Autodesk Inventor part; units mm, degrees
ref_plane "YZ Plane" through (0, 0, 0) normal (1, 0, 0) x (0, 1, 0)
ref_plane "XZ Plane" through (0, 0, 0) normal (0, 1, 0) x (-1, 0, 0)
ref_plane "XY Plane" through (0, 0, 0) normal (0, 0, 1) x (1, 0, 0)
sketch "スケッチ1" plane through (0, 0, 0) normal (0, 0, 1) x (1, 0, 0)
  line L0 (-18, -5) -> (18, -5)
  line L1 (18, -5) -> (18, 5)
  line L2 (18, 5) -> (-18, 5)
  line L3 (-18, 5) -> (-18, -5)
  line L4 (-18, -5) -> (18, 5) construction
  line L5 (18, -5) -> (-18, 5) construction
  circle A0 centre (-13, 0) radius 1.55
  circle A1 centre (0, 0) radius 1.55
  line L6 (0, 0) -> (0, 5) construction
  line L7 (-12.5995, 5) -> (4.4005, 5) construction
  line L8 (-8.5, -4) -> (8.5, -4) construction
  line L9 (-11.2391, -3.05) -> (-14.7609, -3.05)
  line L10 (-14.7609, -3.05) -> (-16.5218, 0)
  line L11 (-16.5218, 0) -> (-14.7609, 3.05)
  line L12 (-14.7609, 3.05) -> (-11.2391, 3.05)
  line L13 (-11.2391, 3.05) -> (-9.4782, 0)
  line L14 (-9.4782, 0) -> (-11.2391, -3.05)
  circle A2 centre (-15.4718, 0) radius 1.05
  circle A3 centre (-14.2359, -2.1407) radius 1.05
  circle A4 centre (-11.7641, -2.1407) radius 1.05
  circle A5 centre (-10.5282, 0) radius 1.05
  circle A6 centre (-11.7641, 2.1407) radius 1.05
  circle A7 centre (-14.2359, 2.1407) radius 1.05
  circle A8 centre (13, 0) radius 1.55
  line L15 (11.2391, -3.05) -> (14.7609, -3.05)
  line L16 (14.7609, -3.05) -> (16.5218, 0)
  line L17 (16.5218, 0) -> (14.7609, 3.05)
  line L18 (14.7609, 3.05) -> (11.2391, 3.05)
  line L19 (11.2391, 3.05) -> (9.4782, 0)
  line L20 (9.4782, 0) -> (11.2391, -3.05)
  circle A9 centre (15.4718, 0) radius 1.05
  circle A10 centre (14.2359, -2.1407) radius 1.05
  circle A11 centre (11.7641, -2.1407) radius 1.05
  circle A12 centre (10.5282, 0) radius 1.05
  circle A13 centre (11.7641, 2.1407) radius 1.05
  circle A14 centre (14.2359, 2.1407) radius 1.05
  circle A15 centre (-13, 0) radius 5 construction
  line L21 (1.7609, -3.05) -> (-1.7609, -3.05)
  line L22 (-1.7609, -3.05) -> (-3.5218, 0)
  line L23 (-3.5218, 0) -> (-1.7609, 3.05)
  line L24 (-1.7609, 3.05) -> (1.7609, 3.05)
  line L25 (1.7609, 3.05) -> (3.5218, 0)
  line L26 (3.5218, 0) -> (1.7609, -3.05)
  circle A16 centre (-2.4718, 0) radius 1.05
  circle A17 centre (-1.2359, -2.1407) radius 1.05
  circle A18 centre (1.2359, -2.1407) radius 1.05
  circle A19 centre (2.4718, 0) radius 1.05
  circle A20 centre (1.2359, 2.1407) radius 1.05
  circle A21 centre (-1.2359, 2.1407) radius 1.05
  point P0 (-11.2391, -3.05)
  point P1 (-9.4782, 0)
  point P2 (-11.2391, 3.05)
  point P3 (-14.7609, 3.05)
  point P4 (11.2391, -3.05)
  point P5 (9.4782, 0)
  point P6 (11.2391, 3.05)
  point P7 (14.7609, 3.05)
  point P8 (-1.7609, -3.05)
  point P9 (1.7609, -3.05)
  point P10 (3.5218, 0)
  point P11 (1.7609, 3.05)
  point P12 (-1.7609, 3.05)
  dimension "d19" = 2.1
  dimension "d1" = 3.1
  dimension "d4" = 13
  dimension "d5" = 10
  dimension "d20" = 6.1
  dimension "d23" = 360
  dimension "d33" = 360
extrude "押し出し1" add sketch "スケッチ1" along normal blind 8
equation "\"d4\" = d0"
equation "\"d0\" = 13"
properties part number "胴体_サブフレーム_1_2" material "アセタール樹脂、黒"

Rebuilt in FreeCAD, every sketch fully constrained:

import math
import FreeCAD as App
import Part
import Sketcher
Q = App.Units.Quantity

doc = App.newDocument("Part")
body = doc.addObject("PartDesign::Body", "Body")

sketch1 = body.newObject("Sketcher::SketchObject", "Sketch")
sketch1.AttachmentSupport = (doc.getObject("XY_Plane"), [""])
sketch1.MapMode = "FlatFace"
sketch1.addGeometry([
    Part.LineSegment(App.Vector(-18, 5, 0), App.Vector(-18, -5, 0)),
    Part.LineSegment(App.Vector(-18, -5, 0), App.Vector(18, -5, 0)),
    Part.LineSegment(App.Vector(18, -5, 0), App.Vector(18, 5, 0)),
    Part.LineSegment(App.Vector(18, 5, 0), App.Vector(-18, 5, 0)),
    Part.LineSegment(App.Vector(-10.7, 2.1, 0), App.Vector(-10, 0.9, 0)),
    Part.ArcOfCircle(Part.Circle(App.Vector(-10.5, 0, 0), App.Vector(0, 0, 1), 1.1), math.radians(-60), math.radians(60)),
    Part.LineSegment(App.Vector(-10, -0.9, 0), App.Vector(-10.7, -2.1, 0)),
    Part.ArcOfCircle(Part.Circle(App.Vector(-11.8, -2.1, 0), App.Vector(0, 0, 1), 1.1), math.radians(-120), math.radians(0)),
    Part.LineSegment(App.Vector(-12.3, -3, 0), App.Vector(-13.7, -3, 0)),
    Part.ArcOfCircle(Part.Circle(App.Vector(-14.2, -2.1, 0), App.Vector(0, 0, 1), 1.1), math.radians(180), math.radians(300)),
    Part.LineSegment(App.Vector(-15.3, -2.1, 0), App.Vector(-16, -0.9, 0)),
    Part.ArcOfCircle(Part.Circle(App.Vector(-15.5, 0, 0), App.Vector(0, 0, 1), 1.1), math.radians(120), math.radians(240)),
    Part.LineSegment(App.Vector(-16, 0.9, 0), App.Vector(-15.3, 2.1, 0)),
    Part.ArcOfCircle(Part.Circle(App.Vector(-14.2, 2.1, 0), App.Vector(0, 0, 1), 1.1), math.radians(60), math.radians(180)),
    Part.LineSegment(App.Vector(-13.7, 3, 0), App.Vector(-12.3, 3, 0)),
    Part.ArcOfCircle(Part.Circle(App.Vector(-11.8, 2.1, 0), App.Vector(0, 0, 1), 1.1), math.radians(0), math.radians(120)),
    Part.LineSegment(App.Vector(2.3, 2.1, 0), App.Vector(3, 0.9, 0)),
    Part.ArcOfCircle(Part.Circle(App.Vector(2.5, 0, 0), App.Vector(0, 0, 1), 1.1), math.radians(-60), math.radians(60)),
    Part.LineSegment(App.Vector(3, -0.9, 0), App.Vector(2.3, -2.1, 0)),
    Part.ArcOfCircle(Part.Circle(App.Vector(1.2, -2.1, 0), App.Vector(0, 0, 1), 1.1), math.radians(-120), math.radians(0)),
    Part.LineSegment(App.Vector(0.7, -3, 0), App.Vector(-0.7, -3, 0)),
    Part.ArcOfCircle(Part.Circle(App.Vector(-1.2, -2.1, 0), App.Vector(0, 0, 1), 1.1), math.radians(180), math.radians(300)),
    Part.LineSegment(App.Vector(-2.3, -2.1, 0), App.Vector(-3, -0.9, 0)),
    Part.ArcOfCircle(Part.Circle(App.Vector(-2.5, 0, 0), App.Vector(0, 0, 1), 1.1), math.radians(120), math.radians(240)),
    Part.LineSegment(App.Vector(-3, 0.9, 0), App.Vector(-2.3, 2.1, 0)),
    Part.ArcOfCircle(Part.Circle(App.Vector(-1.2, 2.1, 0), App.Vector(0, 0, 1), 1.1), math.radians(60), math.radians(180)),
    Part.LineSegment(App.Vector(-0.7, 3, 0), App.Vector(0.7, 3, 0)),
    Part.ArcOfCircle(Part.Circle(App.Vector(1.2, 2.1, 0), App.Vector(0, 0, 1), 1.1), math.radians(0), math.radians(120)),
    Part.LineSegment(App.Vector(15.3, 2.1, 0), App.Vector(16, 0.9, 0)),
    Part.ArcOfCircle(Part.Circle(App.Vector(15.5, 0, 0), App.Vector(0, 0, 1), 1.1), math.radians(-60), math.radians(60)),
    Part.LineSegment(App.Vector(16, -0.9, 0), App.Vector(15.3, -2.1, 0)),
    Part.ArcOfCircle(Part.Circle(App.Vector(14.2, -2.1, 0), App.Vector(0, 0, 1), 1.1), math.radians(-120), math.radians(0)),
    Part.LineSegment(App.Vector(13.7, -3, 0), App.Vector(12.3, -3, 0)),
    Part.ArcOfCircle(Part.Circle(App.Vector(11.8, -2.1, 0), App.Vector(0, 0, 1), 1.1), math.radians(180), math.radians(300)),
    Part.LineSegment(App.Vector(10.7, -2.1, 0), App.Vector(10, -0.9, 0)),
    Part.ArcOfCircle(Part.Circle(App.Vector(10.5, 0, 0), App.Vector(0, 0, 1), 1.1), math.radians(120), math.radians(240)),
    Part.LineSegment(App.Vector(10, 0.9, 0), App.Vector(10.7, 2.1, 0)),
    Part.ArcOfCircle(Part.Circle(App.Vector(11.8, 2.1, 0), App.Vector(0, 0, 1), 1.1), math.radians(60), math.radians(180)),
    Part.LineSegment(App.Vector(12.3, 3, 0), App.Vector(13.7, 3, 0)),
    Part.ArcOfCircle(Part.Circle(App.Vector(14.2, 2.1, 0), App.Vector(0, 0, 1), 1.1), math.radians(0), math.radians(120)),
], False)
sketch1.addConstraint([
    Sketcher.Constraint("Coincident", 0, 2, 1, 1),
    Sketcher.Constraint("Coincident", 1, 2, 2, 1),
    Sketcher.Constraint("Coincident", 2, 2, 3, 1),
    Sketcher.Constraint("Coincident", 3, 2, 0, 1),
    Sketcher.Constraint("Coincident", 4, 2, 5, 2),
    Sketcher.Constraint("Coincident", 5, 1, 6, 1),
    Sketcher.Constraint("Coincident", 6, 2, 7, 2),
    Sketcher.Constraint("Coincident", 7, 1, 8, 1),
    Sketcher.Constraint("Coincident", 8, 2, 9, 2),
    Sketcher.Constraint("Coincident", 9, 1, 10, 1),
    Sketcher.Constraint("Coincident", 10, 2, 11, 2),
    Sketcher.Constraint("Coincident", 11, 1, 12, 1),
    Sketcher.Constraint("Coincident", 12, 2, 13, 2),
    Sketcher.Constraint("Coincident", 13, 1, 14, 1),
    Sketcher.Constraint("Coincident", 14, 2, 15, 2),
    Sketcher.Constraint("Coincident", 15, 1, 4, 1),
    Sketcher.Constraint("Coincident", 16, 2, 17, 2),
    Sketcher.Constraint("Coincident", 17, 1, 18, 1),
    Sketcher.Constraint("Coincident", 18, 2, 19, 2),
    Sketcher.Constraint("Coincident", 19, 1, 20, 1),
    Sketcher.Constraint("Coincident", 20, 2, 21, 2),
    Sketcher.Constraint("Coincident", 21, 1, 22, 1),
    Sketcher.Constraint("Coincident", 22, 2, 23, 2),
    Sketcher.Constraint("Coincident", 23, 1, 24, 1),
    Sketcher.Constraint("Coincident", 24, 2, 25, 2),
    Sketcher.Constraint("Coincident", 25, 1, 26, 1),
    Sketcher.Constraint("Coincident", 26, 2, 27, 2),
    Sketcher.Constraint("Coincident", 27, 1, 16, 1),
    Sketcher.Constraint("Coincident", 28, 2, 29, 2),
    Sketcher.Constraint("Coincident", 29, 1, 30, 1),
    Sketcher.Constraint("Coincident", 30, 2, 31, 2),
    Sketcher.Constraint("Coincident", 31, 1, 32, 1),
    Sketcher.Constraint("Coincident", 32, 2, 33, 2),
    Sketcher.Constraint("Coincident", 33, 1, 34, 1),
    Sketcher.Constraint("Coincident", 34, 2, 35, 2),
    Sketcher.Constraint("Coincident", 35, 1, 36, 1),
    Sketcher.Constraint("Coincident", 36, 2, 37, 2),
    Sketcher.Constraint("Coincident", 37, 1, 38, 1),
    Sketcher.Constraint("Coincident", 38, 2, 39, 2),
    Sketcher.Constraint("Coincident", 39, 1, 28, 1),
    Sketcher.Constraint("Vertical", 0),
    Sketcher.Constraint("Horizontal", 1),
    Sketcher.Constraint("Vertical", 2),
    Sketcher.Constraint("Horizontal", 3),
    Sketcher.Constraint("Horizontal", 8),
    Sketcher.Constraint("Horizontal", 14),
    Sketcher.Constraint("Horizontal", 20),
    Sketcher.Constraint("Horizontal", 26),
    Sketcher.Constraint("Horizontal", 32),
    Sketcher.Constraint("Horizontal", 38),
    Sketcher.Constraint("Equal", 5, 7),
    Sketcher.Constraint("Equal", 7, 9),
    Sketcher.Constraint("Equal", 9, 11),
    Sketcher.Constraint("Equal", 11, 13),
    Sketcher.Constraint("Equal", 13, 15),
    Sketcher.Constraint("Equal", 15, 17),
    Sketcher.Constraint("Equal", 17, 19),
    Sketcher.Constraint("Equal", 19, 21),
    Sketcher.Constraint("Equal", 21, 23),
    Sketcher.Constraint("Equal", 23, 25),
    Sketcher.Constraint("Equal", 25, 27),
    Sketcher.Constraint("Equal", 27, 29),
    Sketcher.Constraint("Equal", 29, 31),
    Sketcher.Constraint("Equal", 31, 33),
    Sketcher.Constraint("Equal", 33, 35),
    Sketcher.Constraint("Equal", 35, 37),
    Sketcher.Constraint("Equal", 37, 39),
    Sketcher.Constraint("Symmetric", 17, 3, 23, 3, -1, 1),
    Sketcher.Constraint("Symmetric", 19, 3, 25, 3, -1, 1),
    Sketcher.Constraint("Symmetric", 21, 3, 27, 3, -1, 1),
    Sketcher.Constraint("Symmetric", 11, 3, 29, 3, -1, 1),
    Sketcher.Constraint("Symmetric", 13, 3, 31, 3, -1, 1),
    Sketcher.Constraint("Symmetric", 15, 3, 33, 3, -1, 1),
    Sketcher.Constraint("Symmetric", 5, 3, 35, 3, -1, 1),
    Sketcher.Constraint("Symmetric", 7, 3, 37, 3, -1, 1),
    Sketcher.Constraint("Symmetric", 9, 3, 39, 3, -1, 1),
    Sketcher.Constraint("Symmetric", 0, 2, 2, 2, -1, 1),
    Sketcher.Constraint("Symmetric", 19, 3, 21, 3, -2),
    Sketcher.Constraint("Symmetric", 9, 3, 31, 3, -2),
    Sketcher.Constraint("Symmetric", 7, 3, 33, 3, -2),
    Sketcher.Constraint("Symmetric", 17, 1, 22, 2, -2),
    Sketcher.Constraint("Symmetric", 11, 1, 28, 2, -2),
    Sketcher.Constraint("Symmetric", 5, 1, 34, 2, -2),
    Sketcher.Constraint("Parallel", 4, 10),
    Sketcher.Constraint("Parallel", 6, 12),
    Sketcher.Constraint("Parallel", 10, 16),
    Sketcher.Constraint("Parallel", 12, 18),
    Sketcher.Constraint("Parallel", 16, 22),
    Sketcher.Constraint("Parallel", 18, 24),
    Sketcher.Constraint("Parallel", 22, 28),
    Sketcher.Constraint("Parallel", 24, 30),
    Sketcher.Constraint("Parallel", 28, 34),
    Sketcher.Constraint("Parallel", 30, 36),
    Sketcher.Constraint("Horizontal", 7, 3, 9, 3),
    Sketcher.Constraint("Horizontal", 9, 3, 19, 3),
    Sketcher.Constraint("Horizontal", 33, 3, 6, 2),
    Sketcher.Constraint("Horizontal", 6, 2, 9, 1),
    Sketcher.Constraint("Horizontal", 5, 1, 10, 2),
    Sketcher.Constraint("Horizontal", 4, 2, 11, 1),
    Sketcher.Constraint("Horizontal", 39, 3, 12, 2),
    Sketcher.Constraint("Horizontal", 12, 2, 15, 1),
    Sketcher.Constraint("Horizontal", 11, 1, 16, 2),
    Sketcher.Constraint("Horizontal", 10, 2, 17, 1),
    Sketcher.Constraint("Horizontal", 9, 1, 18, 2),
    Sketcher.Constraint("Horizontal", 8, 2, 19, 1),
    Sketcher.Constraint("Horizontal", 16, 2, 23, 1),
    Sketcher.Constraint("Horizontal", 14, 2, 25, 1),
    Sketcher.Constraint("Horizontal", 22, 2, 29, 1),
    Sketcher.Constraint("Horizontal", 20, 2, 31, 1),
    Sketcher.Constraint("Horizontal", 28, 2, 35, 1),
    Sketcher.Constraint("Horizontal", 26, 2, 37, 1),
    Sketcher.Constraint("Vertical", 8, 2, 13, 1),
    Sketcher.Constraint("Equal", 14, 20),
    Sketcher.Constraint("DistanceY", 0, 2, 0, 1, 10.0),
    Sketcher.Constraint("Radius", 5, 1.05),
    Sketcher.Constraint("DistanceX", 5, 3, 17, 3, 13.0),
    Sketcher.Constraint("DistanceX", 1, 1, 1, 2, 36.0),
    Sketcher.Constraint("Angle", 4, Q("-60.0003 deg")),
    Sketcher.Constraint("DistanceY", 7, 1, -1, 1, 3.05),
    Sketcher.Constraint("DistanceY", 7, 3, 4, 2, 3.05),
    Sketcher.Constraint("DistanceX", 8, 2, 8, 1, 1.4217),
    Sketcher.Constraint("DistanceX", 7, 3, -1, 1, 11.764),
])
pad1 = body.newObject("PartDesign::Pad", "Pad")
pad1.Profile = sketch1
pad1.Length = 8

doc.recompute()
